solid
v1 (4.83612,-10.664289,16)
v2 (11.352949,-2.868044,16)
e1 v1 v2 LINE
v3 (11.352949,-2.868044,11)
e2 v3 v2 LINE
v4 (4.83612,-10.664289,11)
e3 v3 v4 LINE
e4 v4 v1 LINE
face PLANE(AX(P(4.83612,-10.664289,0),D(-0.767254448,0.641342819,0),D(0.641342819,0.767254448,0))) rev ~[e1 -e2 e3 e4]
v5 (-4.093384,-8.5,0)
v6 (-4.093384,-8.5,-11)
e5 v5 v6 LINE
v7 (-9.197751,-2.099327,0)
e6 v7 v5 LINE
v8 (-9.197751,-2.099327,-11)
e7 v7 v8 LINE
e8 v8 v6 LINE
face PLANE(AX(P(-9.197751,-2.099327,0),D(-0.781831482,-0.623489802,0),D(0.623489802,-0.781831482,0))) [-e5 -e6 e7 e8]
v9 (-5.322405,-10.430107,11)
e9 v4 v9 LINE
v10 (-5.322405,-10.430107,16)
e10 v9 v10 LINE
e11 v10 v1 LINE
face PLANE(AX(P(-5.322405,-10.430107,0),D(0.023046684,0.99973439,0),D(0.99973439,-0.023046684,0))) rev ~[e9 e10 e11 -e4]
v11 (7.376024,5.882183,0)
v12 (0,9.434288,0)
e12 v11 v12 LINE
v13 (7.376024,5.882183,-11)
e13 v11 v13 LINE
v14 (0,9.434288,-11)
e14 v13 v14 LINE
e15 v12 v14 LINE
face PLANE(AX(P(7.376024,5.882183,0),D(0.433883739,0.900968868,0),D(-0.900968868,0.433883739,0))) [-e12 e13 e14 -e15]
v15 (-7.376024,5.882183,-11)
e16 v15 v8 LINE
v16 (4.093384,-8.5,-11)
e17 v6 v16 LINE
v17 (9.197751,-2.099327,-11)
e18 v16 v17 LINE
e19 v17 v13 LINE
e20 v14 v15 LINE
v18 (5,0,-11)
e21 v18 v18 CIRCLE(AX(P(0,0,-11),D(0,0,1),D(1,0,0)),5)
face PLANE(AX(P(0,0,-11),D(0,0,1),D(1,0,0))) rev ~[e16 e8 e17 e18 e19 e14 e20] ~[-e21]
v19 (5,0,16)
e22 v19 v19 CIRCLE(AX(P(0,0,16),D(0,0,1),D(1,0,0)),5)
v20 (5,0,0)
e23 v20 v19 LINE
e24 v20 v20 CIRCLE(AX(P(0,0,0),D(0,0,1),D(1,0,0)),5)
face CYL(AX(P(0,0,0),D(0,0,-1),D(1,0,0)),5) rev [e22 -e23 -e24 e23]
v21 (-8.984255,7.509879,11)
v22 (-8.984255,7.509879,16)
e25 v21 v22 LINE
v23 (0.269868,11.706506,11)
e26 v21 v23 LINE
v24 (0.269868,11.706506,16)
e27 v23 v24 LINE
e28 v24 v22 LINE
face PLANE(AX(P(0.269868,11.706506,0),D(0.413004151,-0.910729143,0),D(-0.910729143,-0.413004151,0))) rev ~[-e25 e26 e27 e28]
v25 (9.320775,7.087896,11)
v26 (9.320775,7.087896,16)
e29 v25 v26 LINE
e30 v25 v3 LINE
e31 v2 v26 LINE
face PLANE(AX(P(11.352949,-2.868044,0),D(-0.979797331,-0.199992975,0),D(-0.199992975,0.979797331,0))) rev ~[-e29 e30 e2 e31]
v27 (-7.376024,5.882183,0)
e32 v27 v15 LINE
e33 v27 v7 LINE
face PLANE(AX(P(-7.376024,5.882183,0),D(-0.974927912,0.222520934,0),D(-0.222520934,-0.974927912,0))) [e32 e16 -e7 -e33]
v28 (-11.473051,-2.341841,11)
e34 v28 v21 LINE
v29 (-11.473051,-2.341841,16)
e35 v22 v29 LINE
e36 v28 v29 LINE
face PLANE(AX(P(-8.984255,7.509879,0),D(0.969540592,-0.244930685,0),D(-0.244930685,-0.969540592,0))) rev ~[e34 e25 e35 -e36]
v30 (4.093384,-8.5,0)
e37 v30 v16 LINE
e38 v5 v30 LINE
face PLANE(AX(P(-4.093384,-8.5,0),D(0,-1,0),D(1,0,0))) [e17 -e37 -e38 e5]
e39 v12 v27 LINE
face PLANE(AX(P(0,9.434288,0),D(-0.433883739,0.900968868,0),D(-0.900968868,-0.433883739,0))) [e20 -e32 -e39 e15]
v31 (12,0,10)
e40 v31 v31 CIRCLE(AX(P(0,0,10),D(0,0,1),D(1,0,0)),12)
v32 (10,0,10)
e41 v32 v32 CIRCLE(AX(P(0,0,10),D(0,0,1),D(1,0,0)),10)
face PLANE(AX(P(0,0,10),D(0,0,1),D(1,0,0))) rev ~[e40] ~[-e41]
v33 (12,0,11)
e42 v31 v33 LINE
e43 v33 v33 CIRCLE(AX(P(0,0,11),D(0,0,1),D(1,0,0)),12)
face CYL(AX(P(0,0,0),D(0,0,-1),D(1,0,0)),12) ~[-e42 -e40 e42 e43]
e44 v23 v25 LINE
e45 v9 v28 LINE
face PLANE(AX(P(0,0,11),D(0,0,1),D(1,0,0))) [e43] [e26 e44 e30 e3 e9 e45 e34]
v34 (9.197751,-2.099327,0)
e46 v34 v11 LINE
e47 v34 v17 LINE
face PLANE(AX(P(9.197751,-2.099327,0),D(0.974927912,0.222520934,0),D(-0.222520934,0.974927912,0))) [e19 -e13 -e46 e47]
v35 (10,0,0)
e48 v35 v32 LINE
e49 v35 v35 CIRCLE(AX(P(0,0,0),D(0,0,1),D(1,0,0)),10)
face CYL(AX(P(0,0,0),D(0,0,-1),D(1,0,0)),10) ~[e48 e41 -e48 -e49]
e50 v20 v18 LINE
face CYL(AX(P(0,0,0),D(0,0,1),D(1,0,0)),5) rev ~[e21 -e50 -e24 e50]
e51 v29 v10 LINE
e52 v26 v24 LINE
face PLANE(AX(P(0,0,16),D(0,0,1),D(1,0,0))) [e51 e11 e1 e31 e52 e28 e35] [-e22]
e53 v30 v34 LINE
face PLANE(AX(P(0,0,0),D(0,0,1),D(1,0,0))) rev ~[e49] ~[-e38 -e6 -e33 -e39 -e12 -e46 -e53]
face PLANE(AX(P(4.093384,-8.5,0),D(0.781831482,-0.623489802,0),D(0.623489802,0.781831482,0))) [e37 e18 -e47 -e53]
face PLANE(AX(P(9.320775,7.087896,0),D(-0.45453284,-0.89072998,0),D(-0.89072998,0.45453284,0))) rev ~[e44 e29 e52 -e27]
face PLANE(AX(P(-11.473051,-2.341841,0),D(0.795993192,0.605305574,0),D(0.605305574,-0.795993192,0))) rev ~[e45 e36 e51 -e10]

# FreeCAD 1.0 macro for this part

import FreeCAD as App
import Part
import Sketcher

V = App.Vector
Q = App.Units.Quantity


def add_polygon(sketch, points):
    """Adds a closed chain of lines whose ends are joined by coincident constraints."""
    first, n = sketch.GeometryCount, len(points)
    for a, b in zip(points, points[1:] + points[:1]):
        sketch.addGeometry(Part.LineSegment(App.Vector(*a, 0), App.Vector(*b, 0)), False)
    for i in range(n):
        sketch.addConstraint(Sketcher.Constraint("Coincident", first + i, 2, first + (i + 1) % n, 1))

doc = App.newDocument("Part")
body = doc.addObject("PartDesign::Body", "Body")

# Sketch on XY plane
sketch1 = body.newObject("Sketcher::SketchObject", "Sketch")
sketch1.AttachmentSupport = (doc.getObject("XY_Plane"), [""])
sketch1.MapMode = "FlatFace"
add_polygon(sketch1, [(5, -11), (11, -3), (9, 7), (0, 12), (-9, 8), (-11, -2), (-5, -10)])  # lines 0-6
sketch1.addGeometry(Part.Circle(V(0, 0, 0), V(0, 0, 1), 5), False)  # 7
sketch1.addConstraint(Sketcher.Constraint("Coincident", 7, 3, -1, 1))
sketch1.addConstraint(Sketcher.Constraint("Equal", 0, 1))
sketch1.addConstraint(Sketcher.Constraint("Equal", 1, 2))
sketch1.addConstraint(Sketcher.Constraint("Equal", 2, 3))
sketch1.addConstraint(Sketcher.Constraint("Equal", 3, 4))
sketch1.addConstraint(Sketcher.Constraint("Equal", 4, 5))
sketch1.addConstraint(Sketcher.Constraint("Equal", 5, 6))
sketch1.addConstraint(Sketcher.Constraint("Diameter", 7, Q("10 mm")))
sketch1.addConstraint(Sketcher.Constraint("DistanceX", 4, 2, 0, 2, Q("22.826 mm")))
sketch1.addConstraint(Sketcher.Constraint("DistanceX", -1, 1, 0, 2, Q("11.352949 mm")))
sketch1.addConstraint(Sketcher.Constraint("DistanceY", -1, 1, 3, 2, Q("7.509879 mm")))
sketch1.addConstraint(Sketcher.Constraint("DistanceY", 4, 2, -1, 1, Q("2.341841 mm")))
sketch1.addConstraint(Sketcher.Constraint("DistanceX", -1, 1, 6, 2, Q("4.83612 mm")))
sketch1.addConstraint(Sketcher.Constraint("DistanceY", 6, 2, -1, 1, Q("10.664289 mm")))
sketch1.addConstraint(Sketcher.Constraint("DistanceY", 0, 2, 1, 2, Q("9.955941 mm")))
sketch1.addConstraint(Sketcher.Constraint("DistanceY", 1, 2, 2, 2, Q("4.61861 mm")))
pad1 = body.newObject("PartDesign::Pad", "Pad")
pad1.Profile = sketch1
pad1.Length = 16

# Sketch on XY plane
sketch2 = body.newObject("Sketcher::SketchObject", "Sketch001")
sketch2.AttachmentSupport = (doc.getObject("XY_Plane"), [""])
sketch2.MapMode = "FlatFace"
sketch2.addGeometry(Part.Circle(V(0, 0, 0), V(0, 0, 1), 12), False)  # 0
add_polygon(sketch2, [(0, 12), (9, 7), (11, -3), (5, -11), (-5, -10), (-11, -2), (-9, 8)])  # lines 1-7
sketch2.addConstraint(Sketcher.Constraint("Coincident", 0, 3, -1, 1))
sketch2.addConstraint(Sketcher.Constraint("Equal", 1, 2))
sketch2.addConstraint(Sketcher.Constraint("Equal", 2, 3))
sketch2.addConstraint(Sketcher.Constraint("Equal", 3, 4))
sketch2.addConstraint(Sketcher.Constraint("Equal", 4, 5))
sketch2.addConstraint(Sketcher.Constraint("Equal", 5, 6))
sketch2.addConstraint(Sketcher.Constraint("Equal", 6, 7))
sketch2.addConstraint(Sketcher.Constraint("Diameter", 0, Q("24 mm")))
sketch2.addConstraint(Sketcher.Constraint("DistanceX", 5, 2, 2, 2, Q("22.826 mm")))
sketch2.addConstraint(Sketcher.Constraint("DistanceX", -1, 1, 2, 2, Q("11.352949 mm")))
sketch2.addConstraint(Sketcher.Constraint("DistanceX", -1, 1, 3, 2, Q("4.83612 mm")))
sketch2.addConstraint(Sketcher.Constraint("DistanceY", 3, 2, -1, 1, Q("10.664289 mm")))
sketch2.addConstraint(Sketcher.Constraint("DistanceY", 5, 2, -1, 1, Q("2.341841 mm")))
sketch2.addConstraint(Sketcher.Constraint("DistanceY", -1, 1, 6, 2, Q("7.509879 mm")))
sketch2.addConstraint(Sketcher.Constraint("DistanceY", 2, 2, 1, 2, Q("9.955941 mm")))
sketch2.addConstraint(Sketcher.Constraint("DistanceX", 4, 2, 1, 2, Q("14.64318 mm")))
pad2 = body.newObject("PartDesign::Pad", "Pad001")
pad2.Profile = sketch2
pad2.Length = 11

# Sketch on XY plane
sketch3 = body.newObject("Sketcher::SketchObject", "Sketch002")
sketch3.AttachmentSupport = (doc.getObject("XY_Plane"), [""])
sketch3.MapMode = "FlatFace"
sketch3.addGeometry(Part.Circle(V(0, 0, 0), V(0, 0, 1), 12), False)  # 0
add_polygon(sketch3, [(0, 12), (9, 7), (11, -3), (5, -11), (-5, -10), (-11, -2), (-9, 8)])  # lines 1-7
sketch3.addConstraint(Sketcher.Constraint("Coincident", 0, 3, -1, 1))
sketch3.addConstraint(Sketcher.Constraint("Equal", 1, 2))
sketch3.addConstraint(Sketcher.Constraint("Equal", 2, 3))
sketch3.addConstraint(Sketcher.Constraint("Equal", 3, 4))
sketch3.addConstraint(Sketcher.Constraint("Equal", 4, 5))
sketch3.addConstraint(Sketcher.Constraint("Equal", 5, 6))
sketch3.addConstraint(Sketcher.Constraint("Equal", 6, 7))
sketch3.addConstraint(Sketcher.Constraint("Diameter", 0, Q("24 mm")))
sketch3.addConstraint(Sketcher.Constraint("DistanceX", 5, 2, 2, 2, Q("22.826 mm")))
sketch3.addConstraint(Sketcher.Constraint("DistanceX", -1, 1, 2, 2, Q("11.352949 mm")))
sketch3.addConstraint(Sketcher.Constraint("DistanceX", -1, 1, 3, 2, Q("4.83612 mm")))
sketch3.addConstraint(Sketcher.Constraint("DistanceY", 3, 2, -1, 1, Q("10.664289 mm")))
sketch3.addConstraint(Sketcher.Constraint("DistanceY", 5, 2, -1, 1, Q("2.341841 mm")))
sketch3.addConstraint(Sketcher.Constraint("DistanceY", -1, 1, 6, 2, Q("7.509879 mm")))
sketch3.addConstraint(Sketcher.Constraint("DistanceY", 2, 2, 1, 2, Q("9.955941 mm")))
sketch3.addConstraint(Sketcher.Constraint("DistanceX", 4, 2, 1, 2, Q("14.64318 mm")))
pocket1 = body.newObject("PartDesign::Pocket", "Pocket")
pocket1.Profile = sketch3
pocket1.Length = 10
pocket1.Reversed = True

# Sketch on XY plane
sketch4 = body.newObject("Sketcher::SketchObject", "Sketch003")
sketch4.AttachmentSupport = (doc.getObject("XY_Plane"), [""])
sketch4.MapMode = "FlatFace"
add_polygon(sketch4, [(5, -11), (11, -3), (9, 7), (0, 12), (-9, 8), (-11, -2), (-5, -10)])  # lines 0-6
sketch4.addGeometry(Part.Circle(V(0, 0, 0), V(0, 0, 1), 10), False)  # 7
sketch4.addConstraint(Sketcher.Constraint("Coincident", 7, 3, -1, 1))
sketch4.addConstraint(Sketcher.Constraint("Equal", 0, 1))
sketch4.addConstraint(Sketcher.Constraint("Equal", 1, 2))
sketch4.addConstraint(Sketcher.Constraint("Equal", 2, 3))
sketch4.addConstraint(Sketcher.Constraint("Equal", 3, 4))
sketch4.addConstraint(Sketcher.Constraint("Equal", 4, 5))
sketch4.addConstraint(Sketcher.Constraint("Equal", 5, 6))
sketch4.addConstraint(Sketcher.Constraint("Diameter", 7, Q("20 mm")))
sketch4.addConstraint(Sketcher.Constraint("DistanceX", 4, 2, 0, 2, Q("22.826 mm")))
sketch4.addConstraint(Sketcher.Constraint("DistanceX", -1, 1, 0, 2, Q("11.352949 mm")))
sketch4.addConstraint(Sketcher.Constraint("DistanceY", -1, 1, 3, 2, Q("7.509879 mm")))
sketch4.addConstraint(Sketcher.Constraint("DistanceY", 4, 2, -1, 1, Q("2.341841 mm")))
sketch4.addConstraint(Sketcher.Constraint("DistanceX", -1, 1, 6, 2, Q("4.83612 mm")))
sketch4.addConstraint(Sketcher.Constraint("DistanceY", 6, 2, -1, 1, Q("10.664289 mm")))
sketch4.addConstraint(Sketcher.Constraint("DistanceY", 0, 2, 1, 2, Q("9.955941 mm")))
sketch4.addConstraint(Sketcher.Constraint("DistanceY", 1, 2, 2, 2, Q("4.61861 mm")))
pocket2 = body.newObject("PartDesign::Pocket", "Pocket001")
pocket2.Profile = sketch4
pocket2.Length = 10
pocket2.Reversed = True

# Sketch on XY plane
sketch5 = body.newObject("Sketcher::SketchObject", "Sketch004")
sketch5.AttachmentSupport = (doc.getObject("XY_Plane"), [""])
sketch5.MapMode = "FlatFace"
add_polygon(sketch5, [(-4, -8), (4, -8), (9, -2), (7, 6), (0, 9), (-7, 6), (-9, -2)])  # lines 0-6
sketch5.addGeometry(Part.Circle(V(0, 0, 0), V(0, 0, 1), 5), False)  # 7
sketch5.addConstraint(Sketcher.Constraint("Horizontal", 0))
sketch5.addConstraint(Sketcher.Constraint("Coincident", 7, 3, -1, 1))
sketch5.addConstraint(Sketcher.Constraint("Symmetric", 2, 2, 4, 2, -2))
sketch5.addConstraint(Sketcher.Constraint("Symmetric", 1, 2, 5, 2, -2))
sketch5.addConstraint(Sketcher.Constraint("PointOnObject", 3, 2, -2))
sketch5.addConstraint(Sketcher.Constraint("Equal", 1, 2))
sketch5.addConstraint(Sketcher.Constraint("Equal", 2, 3))
sketch5.addConstraint(Sketcher.Constraint("Equal", 5, 6))
sketch5.addConstraint(Sketcher.Constraint("Diameter", 7, Q("10 mm")))
sketch5.addConstraint(Sketcher.Constraint("DistanceY", 0, 2, -1, 1, Q("8.5 mm")))
sketch5.addConstraint(Sketcher.Constraint("DistanceX", 0, 1, 0, 2, Q("8.186769 mm")))
sketch5.addConstraint(Sketcher.Constraint("DistanceX", 5, 2, 1, 2, Q("18.395502 mm")))
sketch5.addConstraint(Sketcher.Constraint("Distance", 1, Q("8.186769 mm")))
sketch5.addConstraint(Sketcher.Constraint("DistanceY", -1, 1, 3, 2, Q("9.434288 mm")))
pad3 = body.newObject("PartDesign::Pad", "Pad002")
pad3.Profile = sketch5
pad3.Length = 11
pad3.Reversed = True

doc.recompute()
